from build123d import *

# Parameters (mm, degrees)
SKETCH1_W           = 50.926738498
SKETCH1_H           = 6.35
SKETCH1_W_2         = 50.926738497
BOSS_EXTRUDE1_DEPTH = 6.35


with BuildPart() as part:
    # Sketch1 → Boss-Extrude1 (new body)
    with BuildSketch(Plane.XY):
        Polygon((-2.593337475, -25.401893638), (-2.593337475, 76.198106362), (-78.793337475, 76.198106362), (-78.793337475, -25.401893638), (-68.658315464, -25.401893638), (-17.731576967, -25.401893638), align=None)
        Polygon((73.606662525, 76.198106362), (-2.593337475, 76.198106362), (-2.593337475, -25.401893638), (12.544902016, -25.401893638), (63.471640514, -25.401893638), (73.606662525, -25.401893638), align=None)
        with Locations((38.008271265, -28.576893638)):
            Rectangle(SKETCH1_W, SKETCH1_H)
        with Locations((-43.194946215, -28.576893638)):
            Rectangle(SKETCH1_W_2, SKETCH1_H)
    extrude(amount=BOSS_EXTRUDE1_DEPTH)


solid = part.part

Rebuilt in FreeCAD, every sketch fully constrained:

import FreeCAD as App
import Part
import Sketcher

V = App.Vector
Q = App.Units.Quantity


def add_polygon(sketch, points):
    """Adds a closed chain of lines whose ends are joined by coincident constraints."""
    first, n = sketch.GeometryCount, len(points)
    for a, b in zip(points, points[1:] + points[:1]):
        sketch.addGeometry(Part.LineSegment(App.Vector(*a, 0), App.Vector(*b, 0)), False)
    for i in range(n):
        sketch.addConstraint(Sketcher.Constraint("Coincident", first + i, 2, first + (i + 1) % n, 1))

doc = App.newDocument("Part")
body = doc.addObject("PartDesign::Body", "Body")

# Sketch on XY plane
sketch1 = body.newObject("Sketcher::SketchObject", "Sketch")
sketch1.AttachmentSupport = (doc.getObject("XY_Plane"), [""])
sketch1.MapMode = "FlatFace"
add_polygon(sketch1, [(-79, 76), (-79, -25), (-69, -25), (-69, -32), (-18, -32), (-18, -25), (13, -25), (13, -32), (63, -32), (63, -25), (74, -25), (74, 76)])  # lines 0-11
sketch1.addConstraint([
    Sketcher.Constraint("Vertical", 0),
    Sketcher.Constraint("Horizontal", 1),
    Sketcher.Constraint("Vertical", 2),
    Sketcher.Constraint("Horizontal", 3),
    Sketcher.Constraint("Vertical", 4),
    Sketcher.Constraint("Horizontal", 5),
    Sketcher.Constraint("Vertical", 6),
    Sketcher.Constraint("Horizontal", 7),
    Sketcher.Constraint("Vertical", 8),
    Sketcher.Constraint("Horizontal", 9),
    Sketcher.Constraint("Vertical", 10),
    Sketcher.Constraint("Horizontal", 11),
    Sketcher.Constraint("Horizontal", 1, 2, 4, 2),
    Sketcher.Constraint("Horizontal", 3, 2, 6, 2),
    Sketcher.Constraint("Horizontal", 5, 2, 8, 2),
    Sketcher.Constraint("Equal", 3, 7),
    Sketcher.Constraint("Equal", 1, 9),
    Sketcher.Constraint("DistanceX", 11, 2, 11, 1, Q("6 in")),
    Sketcher.Constraint("DistanceY", 0, 2, 0, 1, Q("4 in")),
    Sketcher.Constraint("DistanceY", 2, 2, 2, 1, Q("0.25 in")),
    Sketcher.Constraint("DistanceX", 0, 2, -1, 1, Q("3.1020999 in")),
    Sketcher.Constraint("DistanceX", 3, 1, 3, 2, Q("50.926738 mm")),
    Sketcher.Constraint("DistanceX", 5, 1, 5, 2, Q("30.276479 mm")),
    Sketcher.Constraint("DistanceY", 0, 2, -1, 1, Q("25.401894 mm")),
])
pad1 = body.newObject("PartDesign::Pad", "Pad")
pad1.Profile = sketch1
pad1.Length = Q("0.25 in")

doc.recompute()
